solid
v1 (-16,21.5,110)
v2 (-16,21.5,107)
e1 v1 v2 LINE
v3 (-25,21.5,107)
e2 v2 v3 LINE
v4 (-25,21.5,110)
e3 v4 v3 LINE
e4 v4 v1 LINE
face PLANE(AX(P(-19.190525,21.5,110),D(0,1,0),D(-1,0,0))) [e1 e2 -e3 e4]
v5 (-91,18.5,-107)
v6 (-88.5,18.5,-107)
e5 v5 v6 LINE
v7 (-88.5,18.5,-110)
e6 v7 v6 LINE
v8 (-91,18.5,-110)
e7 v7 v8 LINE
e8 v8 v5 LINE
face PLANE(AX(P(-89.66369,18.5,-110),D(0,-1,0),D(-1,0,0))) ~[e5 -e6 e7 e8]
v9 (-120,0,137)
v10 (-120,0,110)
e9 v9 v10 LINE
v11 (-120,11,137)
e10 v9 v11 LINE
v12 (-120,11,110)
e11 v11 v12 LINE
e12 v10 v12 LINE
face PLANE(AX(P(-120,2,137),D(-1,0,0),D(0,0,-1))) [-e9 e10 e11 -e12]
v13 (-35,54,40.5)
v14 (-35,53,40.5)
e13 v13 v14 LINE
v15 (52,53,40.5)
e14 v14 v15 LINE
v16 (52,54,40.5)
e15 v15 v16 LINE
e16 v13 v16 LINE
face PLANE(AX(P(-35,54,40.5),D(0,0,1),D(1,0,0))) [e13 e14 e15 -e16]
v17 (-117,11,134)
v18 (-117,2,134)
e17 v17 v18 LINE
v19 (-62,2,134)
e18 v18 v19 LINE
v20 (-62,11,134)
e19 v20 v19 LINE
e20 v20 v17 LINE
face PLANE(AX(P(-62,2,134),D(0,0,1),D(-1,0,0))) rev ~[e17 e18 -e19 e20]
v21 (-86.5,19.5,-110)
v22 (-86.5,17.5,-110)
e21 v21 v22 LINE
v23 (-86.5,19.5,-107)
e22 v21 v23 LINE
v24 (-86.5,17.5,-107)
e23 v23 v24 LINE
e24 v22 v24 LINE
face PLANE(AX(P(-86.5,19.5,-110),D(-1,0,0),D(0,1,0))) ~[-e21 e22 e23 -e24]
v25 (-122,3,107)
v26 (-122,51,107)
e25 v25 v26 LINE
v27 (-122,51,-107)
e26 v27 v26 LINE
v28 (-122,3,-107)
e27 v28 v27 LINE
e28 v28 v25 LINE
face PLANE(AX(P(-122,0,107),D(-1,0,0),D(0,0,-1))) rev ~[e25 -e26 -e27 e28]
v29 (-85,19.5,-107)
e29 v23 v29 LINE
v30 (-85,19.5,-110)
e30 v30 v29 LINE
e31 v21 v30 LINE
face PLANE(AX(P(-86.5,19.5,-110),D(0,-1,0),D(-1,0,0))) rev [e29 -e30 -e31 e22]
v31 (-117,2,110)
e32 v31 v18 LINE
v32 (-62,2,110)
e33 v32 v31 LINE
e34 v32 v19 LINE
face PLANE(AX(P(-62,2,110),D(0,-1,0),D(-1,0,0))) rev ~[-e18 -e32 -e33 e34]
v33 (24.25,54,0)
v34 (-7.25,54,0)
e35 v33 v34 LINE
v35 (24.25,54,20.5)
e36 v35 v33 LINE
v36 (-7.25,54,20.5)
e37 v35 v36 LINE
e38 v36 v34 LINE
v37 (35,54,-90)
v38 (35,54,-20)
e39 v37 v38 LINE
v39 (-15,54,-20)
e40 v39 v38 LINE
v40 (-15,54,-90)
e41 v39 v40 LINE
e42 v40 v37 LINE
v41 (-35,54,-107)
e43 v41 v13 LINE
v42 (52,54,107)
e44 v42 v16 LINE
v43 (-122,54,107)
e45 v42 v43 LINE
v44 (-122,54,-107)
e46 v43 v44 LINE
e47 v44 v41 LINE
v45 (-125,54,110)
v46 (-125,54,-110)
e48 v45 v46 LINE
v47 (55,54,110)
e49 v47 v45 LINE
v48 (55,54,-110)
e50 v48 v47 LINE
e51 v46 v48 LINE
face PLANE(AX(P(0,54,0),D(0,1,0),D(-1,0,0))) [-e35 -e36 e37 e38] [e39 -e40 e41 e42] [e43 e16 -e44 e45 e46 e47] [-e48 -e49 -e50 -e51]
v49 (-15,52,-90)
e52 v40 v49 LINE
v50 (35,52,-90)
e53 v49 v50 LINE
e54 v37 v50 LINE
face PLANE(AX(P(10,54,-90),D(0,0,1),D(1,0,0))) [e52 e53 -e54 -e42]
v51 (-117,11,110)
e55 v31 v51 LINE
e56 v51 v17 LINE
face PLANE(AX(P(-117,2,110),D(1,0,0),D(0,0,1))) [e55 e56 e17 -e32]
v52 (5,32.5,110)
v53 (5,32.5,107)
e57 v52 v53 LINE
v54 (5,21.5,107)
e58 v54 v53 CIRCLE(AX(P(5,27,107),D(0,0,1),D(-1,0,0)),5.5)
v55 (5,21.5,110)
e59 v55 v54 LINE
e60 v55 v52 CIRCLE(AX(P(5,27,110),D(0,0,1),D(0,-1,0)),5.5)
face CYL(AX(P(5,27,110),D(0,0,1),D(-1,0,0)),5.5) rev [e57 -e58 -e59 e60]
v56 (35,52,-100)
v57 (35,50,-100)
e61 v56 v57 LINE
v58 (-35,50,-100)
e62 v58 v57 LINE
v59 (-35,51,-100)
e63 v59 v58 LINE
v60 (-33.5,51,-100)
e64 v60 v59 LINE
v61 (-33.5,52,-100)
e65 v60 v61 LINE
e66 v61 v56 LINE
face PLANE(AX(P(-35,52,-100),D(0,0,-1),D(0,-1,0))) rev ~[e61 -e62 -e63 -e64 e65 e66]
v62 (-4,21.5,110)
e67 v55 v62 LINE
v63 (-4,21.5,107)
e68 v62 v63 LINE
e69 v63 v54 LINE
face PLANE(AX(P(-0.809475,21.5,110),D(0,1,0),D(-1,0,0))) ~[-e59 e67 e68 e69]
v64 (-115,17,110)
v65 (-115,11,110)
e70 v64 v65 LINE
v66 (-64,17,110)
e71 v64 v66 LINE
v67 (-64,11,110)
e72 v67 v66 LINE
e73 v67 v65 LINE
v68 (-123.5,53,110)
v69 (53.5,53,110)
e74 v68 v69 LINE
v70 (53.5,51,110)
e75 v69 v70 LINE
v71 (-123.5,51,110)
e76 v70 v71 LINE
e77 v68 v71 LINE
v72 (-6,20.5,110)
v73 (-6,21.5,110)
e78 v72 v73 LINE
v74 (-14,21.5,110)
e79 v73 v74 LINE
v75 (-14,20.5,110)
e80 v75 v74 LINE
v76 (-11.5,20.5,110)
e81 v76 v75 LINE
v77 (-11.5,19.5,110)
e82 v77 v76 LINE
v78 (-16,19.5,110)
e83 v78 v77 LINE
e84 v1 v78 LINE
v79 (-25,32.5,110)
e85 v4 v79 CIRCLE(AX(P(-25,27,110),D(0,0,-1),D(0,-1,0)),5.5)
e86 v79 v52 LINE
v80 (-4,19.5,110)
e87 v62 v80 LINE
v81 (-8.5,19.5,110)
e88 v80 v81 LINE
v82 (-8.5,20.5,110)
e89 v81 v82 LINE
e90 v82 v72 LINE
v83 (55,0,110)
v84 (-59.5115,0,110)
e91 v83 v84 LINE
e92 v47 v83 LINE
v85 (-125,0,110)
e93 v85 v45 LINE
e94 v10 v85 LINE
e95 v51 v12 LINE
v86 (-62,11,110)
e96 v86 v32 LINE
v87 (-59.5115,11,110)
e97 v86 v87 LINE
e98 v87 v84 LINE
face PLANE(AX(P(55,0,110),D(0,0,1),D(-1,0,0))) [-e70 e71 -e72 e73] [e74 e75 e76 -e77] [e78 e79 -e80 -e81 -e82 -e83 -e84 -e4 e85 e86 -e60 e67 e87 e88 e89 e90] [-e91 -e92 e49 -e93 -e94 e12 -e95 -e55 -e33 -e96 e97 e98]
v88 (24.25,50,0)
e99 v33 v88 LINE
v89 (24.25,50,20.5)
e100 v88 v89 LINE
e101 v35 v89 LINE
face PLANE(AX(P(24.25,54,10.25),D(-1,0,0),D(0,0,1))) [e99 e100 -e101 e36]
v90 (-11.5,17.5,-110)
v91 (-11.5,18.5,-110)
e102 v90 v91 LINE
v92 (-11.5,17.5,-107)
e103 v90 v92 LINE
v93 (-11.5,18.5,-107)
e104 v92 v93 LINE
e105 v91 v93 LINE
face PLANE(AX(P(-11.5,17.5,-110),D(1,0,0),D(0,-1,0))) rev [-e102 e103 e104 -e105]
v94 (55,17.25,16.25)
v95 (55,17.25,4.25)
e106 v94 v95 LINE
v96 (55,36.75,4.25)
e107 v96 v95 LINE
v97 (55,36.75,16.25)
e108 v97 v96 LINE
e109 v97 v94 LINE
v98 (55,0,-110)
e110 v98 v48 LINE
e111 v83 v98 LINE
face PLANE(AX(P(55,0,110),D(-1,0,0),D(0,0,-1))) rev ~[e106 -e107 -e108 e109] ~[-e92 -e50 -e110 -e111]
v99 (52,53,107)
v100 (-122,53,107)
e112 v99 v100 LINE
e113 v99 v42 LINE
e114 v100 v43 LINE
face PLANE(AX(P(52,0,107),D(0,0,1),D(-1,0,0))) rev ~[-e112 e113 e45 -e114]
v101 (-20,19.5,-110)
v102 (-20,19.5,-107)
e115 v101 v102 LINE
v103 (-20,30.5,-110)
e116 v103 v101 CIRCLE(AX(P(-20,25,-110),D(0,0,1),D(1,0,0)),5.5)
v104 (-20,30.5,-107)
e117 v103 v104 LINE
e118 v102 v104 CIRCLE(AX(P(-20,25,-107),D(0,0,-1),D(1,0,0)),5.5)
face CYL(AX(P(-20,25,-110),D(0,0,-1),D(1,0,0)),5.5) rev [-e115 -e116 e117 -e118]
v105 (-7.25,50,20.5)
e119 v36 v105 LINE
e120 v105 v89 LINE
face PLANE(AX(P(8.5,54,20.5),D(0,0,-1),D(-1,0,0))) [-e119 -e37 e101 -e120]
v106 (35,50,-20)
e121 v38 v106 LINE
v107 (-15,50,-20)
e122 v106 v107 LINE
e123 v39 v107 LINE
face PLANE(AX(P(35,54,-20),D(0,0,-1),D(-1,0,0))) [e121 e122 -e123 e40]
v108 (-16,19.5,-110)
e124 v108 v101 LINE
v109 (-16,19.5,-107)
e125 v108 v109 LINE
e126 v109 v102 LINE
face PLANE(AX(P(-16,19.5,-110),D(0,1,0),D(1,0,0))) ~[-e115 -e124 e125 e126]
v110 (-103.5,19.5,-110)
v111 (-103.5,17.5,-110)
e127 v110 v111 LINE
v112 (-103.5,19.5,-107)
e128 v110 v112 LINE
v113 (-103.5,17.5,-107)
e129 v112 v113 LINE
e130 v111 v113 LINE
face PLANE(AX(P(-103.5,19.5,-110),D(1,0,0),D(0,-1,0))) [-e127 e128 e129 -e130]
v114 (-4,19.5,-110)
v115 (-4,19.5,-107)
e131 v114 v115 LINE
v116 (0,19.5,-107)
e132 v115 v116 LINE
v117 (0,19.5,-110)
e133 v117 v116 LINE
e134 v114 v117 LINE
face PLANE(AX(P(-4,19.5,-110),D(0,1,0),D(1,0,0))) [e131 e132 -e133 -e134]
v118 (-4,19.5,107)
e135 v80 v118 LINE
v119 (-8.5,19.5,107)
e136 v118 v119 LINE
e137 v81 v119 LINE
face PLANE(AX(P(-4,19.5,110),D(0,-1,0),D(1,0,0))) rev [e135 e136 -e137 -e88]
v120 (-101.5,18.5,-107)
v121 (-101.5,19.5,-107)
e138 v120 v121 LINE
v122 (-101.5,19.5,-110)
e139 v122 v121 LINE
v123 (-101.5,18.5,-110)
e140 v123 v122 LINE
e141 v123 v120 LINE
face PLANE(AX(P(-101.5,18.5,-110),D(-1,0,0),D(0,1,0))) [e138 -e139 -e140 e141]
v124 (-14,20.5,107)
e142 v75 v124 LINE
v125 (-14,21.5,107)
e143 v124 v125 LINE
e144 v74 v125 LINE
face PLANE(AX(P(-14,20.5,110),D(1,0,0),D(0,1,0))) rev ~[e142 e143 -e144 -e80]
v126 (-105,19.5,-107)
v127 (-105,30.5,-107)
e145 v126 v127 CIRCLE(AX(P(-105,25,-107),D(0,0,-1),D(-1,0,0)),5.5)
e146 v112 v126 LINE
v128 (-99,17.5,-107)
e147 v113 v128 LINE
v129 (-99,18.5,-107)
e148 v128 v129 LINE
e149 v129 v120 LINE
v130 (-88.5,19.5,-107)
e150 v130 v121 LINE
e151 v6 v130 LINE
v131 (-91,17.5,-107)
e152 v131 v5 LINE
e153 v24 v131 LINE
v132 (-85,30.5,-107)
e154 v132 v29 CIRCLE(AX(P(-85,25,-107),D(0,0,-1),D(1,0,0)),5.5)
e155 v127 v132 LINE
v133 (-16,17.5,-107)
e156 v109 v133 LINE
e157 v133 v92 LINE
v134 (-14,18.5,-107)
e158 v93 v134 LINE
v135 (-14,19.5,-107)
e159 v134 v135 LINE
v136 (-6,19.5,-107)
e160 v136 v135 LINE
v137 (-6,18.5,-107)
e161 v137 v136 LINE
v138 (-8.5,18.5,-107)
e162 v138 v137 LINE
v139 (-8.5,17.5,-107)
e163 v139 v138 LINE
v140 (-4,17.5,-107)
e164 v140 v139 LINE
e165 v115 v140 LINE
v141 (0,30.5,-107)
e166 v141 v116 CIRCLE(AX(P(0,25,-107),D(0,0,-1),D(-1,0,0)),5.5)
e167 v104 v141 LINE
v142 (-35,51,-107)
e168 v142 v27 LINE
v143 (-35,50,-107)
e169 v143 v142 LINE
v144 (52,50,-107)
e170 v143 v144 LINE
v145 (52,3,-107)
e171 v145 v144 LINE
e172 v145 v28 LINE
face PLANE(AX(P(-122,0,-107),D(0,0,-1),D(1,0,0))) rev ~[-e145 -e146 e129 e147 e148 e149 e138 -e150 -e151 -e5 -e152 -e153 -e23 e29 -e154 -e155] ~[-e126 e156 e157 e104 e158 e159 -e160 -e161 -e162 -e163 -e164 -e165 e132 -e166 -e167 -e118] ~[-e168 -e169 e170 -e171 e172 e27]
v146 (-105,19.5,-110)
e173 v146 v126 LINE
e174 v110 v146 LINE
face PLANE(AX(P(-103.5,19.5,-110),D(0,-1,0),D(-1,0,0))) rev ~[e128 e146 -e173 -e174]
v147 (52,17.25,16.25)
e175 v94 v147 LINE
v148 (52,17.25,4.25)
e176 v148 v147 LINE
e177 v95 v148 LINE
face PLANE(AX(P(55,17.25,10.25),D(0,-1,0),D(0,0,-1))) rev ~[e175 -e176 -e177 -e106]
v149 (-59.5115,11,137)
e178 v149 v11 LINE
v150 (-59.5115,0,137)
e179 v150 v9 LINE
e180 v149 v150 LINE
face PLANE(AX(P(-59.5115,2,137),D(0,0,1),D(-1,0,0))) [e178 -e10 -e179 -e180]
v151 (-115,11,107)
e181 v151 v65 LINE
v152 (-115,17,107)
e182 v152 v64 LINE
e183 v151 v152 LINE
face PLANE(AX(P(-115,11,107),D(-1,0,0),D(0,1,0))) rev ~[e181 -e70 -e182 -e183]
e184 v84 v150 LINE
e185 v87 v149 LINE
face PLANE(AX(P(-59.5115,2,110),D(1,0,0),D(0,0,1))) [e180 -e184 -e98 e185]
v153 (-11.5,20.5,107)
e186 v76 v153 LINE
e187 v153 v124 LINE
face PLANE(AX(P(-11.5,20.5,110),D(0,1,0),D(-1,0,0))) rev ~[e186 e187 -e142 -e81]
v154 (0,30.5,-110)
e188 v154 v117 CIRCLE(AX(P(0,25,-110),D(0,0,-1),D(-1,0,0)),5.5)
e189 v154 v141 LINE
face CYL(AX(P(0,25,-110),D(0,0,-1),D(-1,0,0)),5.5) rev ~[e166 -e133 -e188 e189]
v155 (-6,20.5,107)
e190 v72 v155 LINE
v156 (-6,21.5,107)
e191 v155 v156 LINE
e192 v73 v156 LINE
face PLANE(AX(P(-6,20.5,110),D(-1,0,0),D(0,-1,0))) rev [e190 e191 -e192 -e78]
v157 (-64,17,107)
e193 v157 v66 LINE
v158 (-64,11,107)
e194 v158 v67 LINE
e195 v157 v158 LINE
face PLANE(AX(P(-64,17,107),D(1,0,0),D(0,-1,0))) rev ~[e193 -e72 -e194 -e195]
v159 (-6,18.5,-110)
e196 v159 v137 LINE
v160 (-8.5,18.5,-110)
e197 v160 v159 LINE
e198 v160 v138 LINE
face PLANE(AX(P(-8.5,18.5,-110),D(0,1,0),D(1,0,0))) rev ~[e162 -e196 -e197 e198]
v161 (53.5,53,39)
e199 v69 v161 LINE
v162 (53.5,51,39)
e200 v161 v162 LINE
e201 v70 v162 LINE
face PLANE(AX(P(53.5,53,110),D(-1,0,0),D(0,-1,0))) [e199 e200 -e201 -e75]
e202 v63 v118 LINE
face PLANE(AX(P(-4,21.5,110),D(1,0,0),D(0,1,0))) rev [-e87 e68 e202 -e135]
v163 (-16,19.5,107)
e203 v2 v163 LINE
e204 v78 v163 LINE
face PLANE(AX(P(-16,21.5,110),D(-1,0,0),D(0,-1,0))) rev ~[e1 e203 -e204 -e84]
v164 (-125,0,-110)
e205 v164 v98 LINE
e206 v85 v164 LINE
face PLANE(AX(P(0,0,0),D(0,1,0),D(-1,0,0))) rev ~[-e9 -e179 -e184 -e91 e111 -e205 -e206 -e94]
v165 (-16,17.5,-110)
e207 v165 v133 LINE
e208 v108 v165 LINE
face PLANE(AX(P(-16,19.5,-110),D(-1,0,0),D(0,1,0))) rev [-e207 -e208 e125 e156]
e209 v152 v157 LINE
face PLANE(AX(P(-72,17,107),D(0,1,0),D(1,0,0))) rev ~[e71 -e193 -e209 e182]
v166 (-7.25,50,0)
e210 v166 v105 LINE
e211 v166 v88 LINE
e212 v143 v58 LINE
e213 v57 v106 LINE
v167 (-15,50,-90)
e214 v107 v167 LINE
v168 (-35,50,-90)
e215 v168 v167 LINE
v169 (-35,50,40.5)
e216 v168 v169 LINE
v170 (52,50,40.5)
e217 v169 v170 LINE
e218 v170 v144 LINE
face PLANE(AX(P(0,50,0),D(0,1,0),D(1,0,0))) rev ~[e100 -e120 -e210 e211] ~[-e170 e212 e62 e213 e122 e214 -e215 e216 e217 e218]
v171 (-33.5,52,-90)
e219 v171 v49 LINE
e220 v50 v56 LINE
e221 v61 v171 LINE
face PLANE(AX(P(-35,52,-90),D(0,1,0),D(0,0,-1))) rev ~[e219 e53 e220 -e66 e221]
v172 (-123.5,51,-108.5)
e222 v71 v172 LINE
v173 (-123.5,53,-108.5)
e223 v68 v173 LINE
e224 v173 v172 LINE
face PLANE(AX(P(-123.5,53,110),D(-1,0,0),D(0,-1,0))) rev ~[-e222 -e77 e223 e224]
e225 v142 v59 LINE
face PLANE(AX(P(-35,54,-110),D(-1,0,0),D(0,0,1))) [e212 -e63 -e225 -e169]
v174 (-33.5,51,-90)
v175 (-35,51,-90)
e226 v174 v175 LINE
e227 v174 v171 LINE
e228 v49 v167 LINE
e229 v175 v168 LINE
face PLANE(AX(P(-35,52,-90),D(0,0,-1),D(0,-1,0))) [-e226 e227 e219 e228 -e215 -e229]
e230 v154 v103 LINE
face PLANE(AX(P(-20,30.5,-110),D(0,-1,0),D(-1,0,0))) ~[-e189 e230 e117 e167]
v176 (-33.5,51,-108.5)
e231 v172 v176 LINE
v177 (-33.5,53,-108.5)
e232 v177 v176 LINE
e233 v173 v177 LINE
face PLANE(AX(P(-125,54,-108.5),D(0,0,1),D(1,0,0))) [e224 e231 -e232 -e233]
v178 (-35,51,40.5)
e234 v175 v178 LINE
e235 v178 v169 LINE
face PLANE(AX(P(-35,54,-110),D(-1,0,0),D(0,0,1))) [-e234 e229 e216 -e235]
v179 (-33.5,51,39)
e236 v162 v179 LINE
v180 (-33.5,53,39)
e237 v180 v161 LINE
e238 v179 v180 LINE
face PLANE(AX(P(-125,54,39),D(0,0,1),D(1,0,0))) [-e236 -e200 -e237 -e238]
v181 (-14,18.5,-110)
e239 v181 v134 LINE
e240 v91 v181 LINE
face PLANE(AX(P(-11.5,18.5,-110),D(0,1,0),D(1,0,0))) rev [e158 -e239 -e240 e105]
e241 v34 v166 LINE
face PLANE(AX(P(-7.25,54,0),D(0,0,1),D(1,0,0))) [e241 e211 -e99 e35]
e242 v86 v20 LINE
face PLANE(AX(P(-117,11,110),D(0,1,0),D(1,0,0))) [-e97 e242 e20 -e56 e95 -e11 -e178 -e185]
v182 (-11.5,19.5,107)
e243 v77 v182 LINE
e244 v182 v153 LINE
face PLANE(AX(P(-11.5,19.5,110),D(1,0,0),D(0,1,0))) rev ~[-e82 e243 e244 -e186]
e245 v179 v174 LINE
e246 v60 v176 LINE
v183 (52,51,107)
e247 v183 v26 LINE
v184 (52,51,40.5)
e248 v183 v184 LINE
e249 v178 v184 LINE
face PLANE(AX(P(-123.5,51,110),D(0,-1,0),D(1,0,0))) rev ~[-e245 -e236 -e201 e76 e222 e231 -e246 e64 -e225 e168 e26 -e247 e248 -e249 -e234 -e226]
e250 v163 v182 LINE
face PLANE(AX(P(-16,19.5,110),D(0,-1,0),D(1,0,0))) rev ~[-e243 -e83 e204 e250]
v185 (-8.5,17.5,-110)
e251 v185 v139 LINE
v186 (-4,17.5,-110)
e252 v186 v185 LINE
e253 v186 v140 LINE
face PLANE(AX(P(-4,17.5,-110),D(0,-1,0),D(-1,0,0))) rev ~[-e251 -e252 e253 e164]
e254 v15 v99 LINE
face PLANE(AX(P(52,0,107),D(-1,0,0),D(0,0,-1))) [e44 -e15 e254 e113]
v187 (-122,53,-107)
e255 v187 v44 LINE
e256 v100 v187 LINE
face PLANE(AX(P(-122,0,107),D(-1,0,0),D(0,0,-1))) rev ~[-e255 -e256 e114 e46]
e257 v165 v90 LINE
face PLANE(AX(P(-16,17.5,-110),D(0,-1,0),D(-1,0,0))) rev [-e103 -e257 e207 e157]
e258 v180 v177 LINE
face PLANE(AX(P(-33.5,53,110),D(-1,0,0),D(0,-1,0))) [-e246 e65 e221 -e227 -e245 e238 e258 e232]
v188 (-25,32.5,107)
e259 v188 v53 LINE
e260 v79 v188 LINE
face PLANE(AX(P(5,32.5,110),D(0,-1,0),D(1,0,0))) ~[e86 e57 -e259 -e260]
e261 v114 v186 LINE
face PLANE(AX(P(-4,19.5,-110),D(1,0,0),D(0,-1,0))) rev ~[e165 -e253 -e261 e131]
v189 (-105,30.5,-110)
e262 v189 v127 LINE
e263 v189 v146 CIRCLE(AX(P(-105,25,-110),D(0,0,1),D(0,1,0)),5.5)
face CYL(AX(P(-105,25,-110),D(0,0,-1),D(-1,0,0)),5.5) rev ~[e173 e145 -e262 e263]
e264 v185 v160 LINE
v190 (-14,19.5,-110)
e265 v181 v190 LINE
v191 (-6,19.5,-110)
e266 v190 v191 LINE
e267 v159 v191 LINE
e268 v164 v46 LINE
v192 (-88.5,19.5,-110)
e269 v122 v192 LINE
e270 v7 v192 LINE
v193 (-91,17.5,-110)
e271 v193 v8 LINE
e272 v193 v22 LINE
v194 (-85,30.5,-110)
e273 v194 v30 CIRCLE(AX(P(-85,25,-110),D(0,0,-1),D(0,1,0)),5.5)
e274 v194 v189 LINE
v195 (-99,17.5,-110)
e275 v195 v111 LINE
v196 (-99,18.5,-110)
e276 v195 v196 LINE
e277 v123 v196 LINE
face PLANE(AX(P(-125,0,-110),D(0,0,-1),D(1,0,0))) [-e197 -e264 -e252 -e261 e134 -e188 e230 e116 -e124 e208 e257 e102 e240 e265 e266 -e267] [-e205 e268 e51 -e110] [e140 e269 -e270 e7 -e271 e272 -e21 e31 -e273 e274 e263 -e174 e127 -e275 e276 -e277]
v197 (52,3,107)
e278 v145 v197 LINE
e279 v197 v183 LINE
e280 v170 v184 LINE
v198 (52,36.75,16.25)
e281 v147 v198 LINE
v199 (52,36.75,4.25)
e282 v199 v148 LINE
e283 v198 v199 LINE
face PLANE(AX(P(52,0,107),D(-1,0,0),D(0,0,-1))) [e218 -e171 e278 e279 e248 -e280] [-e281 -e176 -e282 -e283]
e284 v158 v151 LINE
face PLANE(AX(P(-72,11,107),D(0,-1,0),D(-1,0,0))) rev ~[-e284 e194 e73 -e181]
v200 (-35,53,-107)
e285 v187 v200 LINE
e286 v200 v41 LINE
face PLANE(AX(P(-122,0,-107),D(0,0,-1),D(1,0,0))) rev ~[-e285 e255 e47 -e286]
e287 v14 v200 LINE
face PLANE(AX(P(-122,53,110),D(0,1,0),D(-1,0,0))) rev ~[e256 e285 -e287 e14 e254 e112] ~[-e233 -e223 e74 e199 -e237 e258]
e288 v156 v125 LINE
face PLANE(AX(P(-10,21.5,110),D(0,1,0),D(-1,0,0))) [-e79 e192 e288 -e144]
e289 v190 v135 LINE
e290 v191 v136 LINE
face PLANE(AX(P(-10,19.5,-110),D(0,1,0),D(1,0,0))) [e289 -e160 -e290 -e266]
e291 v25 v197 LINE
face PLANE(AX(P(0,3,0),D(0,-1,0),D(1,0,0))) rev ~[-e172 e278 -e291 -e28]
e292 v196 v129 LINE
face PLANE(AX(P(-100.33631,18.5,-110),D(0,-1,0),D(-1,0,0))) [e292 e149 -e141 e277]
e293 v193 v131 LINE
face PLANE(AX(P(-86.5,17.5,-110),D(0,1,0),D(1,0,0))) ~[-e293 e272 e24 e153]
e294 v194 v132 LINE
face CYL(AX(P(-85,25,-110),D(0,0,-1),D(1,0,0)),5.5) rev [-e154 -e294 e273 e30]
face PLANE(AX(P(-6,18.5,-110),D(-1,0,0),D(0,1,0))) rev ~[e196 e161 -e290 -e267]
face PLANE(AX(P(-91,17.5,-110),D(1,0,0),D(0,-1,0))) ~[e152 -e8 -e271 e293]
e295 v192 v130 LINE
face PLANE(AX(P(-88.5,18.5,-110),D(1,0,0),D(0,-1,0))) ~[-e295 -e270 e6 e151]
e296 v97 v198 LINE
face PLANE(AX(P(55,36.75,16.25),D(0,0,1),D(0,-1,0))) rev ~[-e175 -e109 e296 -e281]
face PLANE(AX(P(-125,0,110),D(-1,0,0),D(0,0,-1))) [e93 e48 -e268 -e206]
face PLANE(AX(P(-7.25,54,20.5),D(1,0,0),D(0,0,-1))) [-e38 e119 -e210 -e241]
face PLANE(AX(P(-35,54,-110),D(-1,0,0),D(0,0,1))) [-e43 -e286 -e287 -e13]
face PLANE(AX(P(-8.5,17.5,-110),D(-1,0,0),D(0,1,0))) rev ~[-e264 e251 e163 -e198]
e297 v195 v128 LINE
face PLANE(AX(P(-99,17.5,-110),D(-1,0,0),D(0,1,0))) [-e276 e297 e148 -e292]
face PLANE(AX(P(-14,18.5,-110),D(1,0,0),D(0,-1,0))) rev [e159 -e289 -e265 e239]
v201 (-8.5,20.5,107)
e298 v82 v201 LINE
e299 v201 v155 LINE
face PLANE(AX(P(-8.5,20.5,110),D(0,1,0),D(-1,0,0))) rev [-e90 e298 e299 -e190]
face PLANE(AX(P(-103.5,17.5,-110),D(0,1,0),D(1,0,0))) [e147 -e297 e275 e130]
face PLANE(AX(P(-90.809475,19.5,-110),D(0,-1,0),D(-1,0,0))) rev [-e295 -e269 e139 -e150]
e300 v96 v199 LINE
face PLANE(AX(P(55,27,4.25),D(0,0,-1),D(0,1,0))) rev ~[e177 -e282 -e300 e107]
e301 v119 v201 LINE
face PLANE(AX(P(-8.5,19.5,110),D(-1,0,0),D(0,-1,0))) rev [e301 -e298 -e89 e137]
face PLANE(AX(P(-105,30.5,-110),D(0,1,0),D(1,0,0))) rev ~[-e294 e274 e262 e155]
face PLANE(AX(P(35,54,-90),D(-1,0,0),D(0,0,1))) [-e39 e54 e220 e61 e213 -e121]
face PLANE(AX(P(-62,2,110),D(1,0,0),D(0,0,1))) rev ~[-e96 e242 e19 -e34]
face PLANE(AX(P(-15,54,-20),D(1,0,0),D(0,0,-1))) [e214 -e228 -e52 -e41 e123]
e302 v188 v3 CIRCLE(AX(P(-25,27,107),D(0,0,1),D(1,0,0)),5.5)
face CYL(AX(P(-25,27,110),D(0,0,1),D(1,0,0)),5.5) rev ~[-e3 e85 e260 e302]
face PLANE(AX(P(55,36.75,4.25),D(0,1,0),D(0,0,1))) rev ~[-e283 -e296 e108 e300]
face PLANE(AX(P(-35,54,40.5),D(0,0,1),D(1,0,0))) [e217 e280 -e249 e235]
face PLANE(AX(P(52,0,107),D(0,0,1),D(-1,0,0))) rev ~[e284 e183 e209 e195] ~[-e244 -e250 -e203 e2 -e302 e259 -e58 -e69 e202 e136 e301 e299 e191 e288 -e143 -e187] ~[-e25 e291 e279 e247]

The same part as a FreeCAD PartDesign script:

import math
import FreeCAD as App
import Part
import Sketcher
from FreeCAD import Vector

doc = App.newDocument("Part")
body = doc.addObject("PartDesign::Body", "Body")

sketch1 = body.newObject("Sketcher::SketchObject", "Sketch")
sketch1.AttachmentSupport = (doc.getObject("XZ_Plane"), [""])
sketch1.MapMode = "FlatFace"
sketch1.addGeometry(Part.LineSegment(Vector(55, 110, 0), Vector(55, -110, 0)), False)
sketch1.addGeometry(Part.LineSegment(Vector(55, -110, 0), Vector(-125, -110, 0)), False)
sketch1.addGeometry(Part.LineSegment(Vector(-125, -110, 0), Vector(-125, 110, 0)), False)
sketch1.addGeometry(Part.LineSegment(Vector(-125, 110, 0), Vector(55, 110, 0)), False)
sketch1.addGeometry(Part.LineSegment(Vector(-122, -107, 0), Vector(52, -107, 0)), False)
sketch1.addGeometry(Part.LineSegment(Vector(52, -107, 0), Vector(52, 107, 0)), False)
sketch1.addGeometry(Part.LineSegment(Vector(52, 107, 0), Vector(-122, 107, 0)), False)
sketch1.addGeometry(Part.LineSegment(Vector(-122, 107, 0), Vector(-122, -107, 0)), False)
sketch1.addConstraint(Sketcher.Constraint("Coincident", 0, 2, 1, 1))
sketch1.addConstraint(Sketcher.Constraint("Coincident", 1, 2, 2, 1))
sketch1.addConstraint(Sketcher.Constraint("Coincident", 2, 2, 3, 1))
sketch1.addConstraint(Sketcher.Constraint("Coincident", 3, 2, 0, 1))
sketch1.addConstraint(Sketcher.Constraint("Coincident", 4, 2, 5, 1))
sketch1.addConstraint(Sketcher.Constraint("Coincident", 5, 2, 6, 1))
sketch1.addConstraint(Sketcher.Constraint("Coincident", 6, 2, 7, 1))
sketch1.addConstraint(Sketcher.Constraint("Coincident", 7, 2, 4, 1))
sketch1.addConstraint(Sketcher.Constraint("Vertical", 0))
sketch1.addConstraint(Sketcher.Constraint("Horizontal", 1))
sketch1.addConstraint(Sketcher.Constraint("Vertical", 2))
sketch1.addConstraint(Sketcher.Constraint("Horizontal", 3))
sketch1.addConstraint(Sketcher.Constraint("Horizontal", 4))
sketch1.addConstraint(Sketcher.Constraint("Vertical", 5))
sketch1.addConstraint(Sketcher.Constraint("Horizontal", 6))
sketch1.addConstraint(Sketcher.Constraint("Vertical", 7))
sketch1.addConstraint(Sketcher.Constraint("DistanceX", 1, 2, 1, 1, 180.0))
sketch1.addConstraint(Sketcher.Constraint("DistanceX", 4, 1, 4, 2, 174.0))
sketch1.addConstraint(Sketcher.Constraint("DistanceY", 0, 2, 0, 1, 220.0))
sketch1.addConstraint(Sketcher.Constraint("DistanceY", 5, 1, 5, 2, 214.0))
sketch1.addConstraint(Sketcher.Constraint("DistanceX", -1, 1, 0, 2, 55.0))
sketch1.addConstraint(Sketcher.Constraint("DistanceY", 0, 2, -1, 1, 110.0))
sketch1.addConstraint(Sketcher.Constraint("DistanceX", -1, 1, 4, 2, 52.0))
sketch1.addConstraint(Sketcher.Constraint("DistanceY", 4, 2, -1, 1, 107.0))
pad1 = body.newObject("PartDesign::Pad", "Pad")
pad1.Profile = sketch1
pad1.Length = 54
pad1.Reversed = True

sketch2 = body.newObject("Sketcher::SketchObject", "Sketch001")
sketch2.AttachmentSupport = (doc.getObject("XZ_Plane"), [""])
sketch2.MapMode = "FlatFace"
sketch2.addGeometry(Part.LineSegment(Vector(55, -110, 0), Vector(55, 110, 0)), False)
sketch2.addGeometry(Part.LineSegment(Vector(55, 110, 0), Vector(-123.5, 110, 0)), False)
sketch2.addGeometry(Part.LineSegment(Vector(-123.5, 110, 0), Vector(-123.5, -110, 0)), False)
sketch2.addGeometry(Part.LineSegment(Vector(-123.5, -110, 0), Vector(55, -110, 0)), False)
sketch2.addConstraint(Sketcher.Constraint("Coincident", 0, 2, 1, 1))
sketch2.addConstraint(Sketcher.Constraint("Coincident", 1, 2, 2, 1))
sketch2.addConstraint(Sketcher.Constraint("Coincident", 2, 2, 3, 1))
sketch2.addConstraint(Sketcher.Constraint("Coincident", 3, 2, 0, 1))
sketch2.addConstraint(Sketcher.Constraint("Vertical", 0))
sketch2.addConstraint(Sketcher.Constraint("Horizontal", 1))
sketch2.addConstraint(Sketcher.Constraint("Vertical", 2))
sketch2.addConstraint(Sketcher.Constraint("Horizontal", 3))
sketch2.addConstraint(Sketcher.Constraint("DistanceY", 0, 1, 0, 2, 220.0))
sketch2.addConstraint(Sketcher.Constraint("DistanceX", 1, 2, 1, 1, 178.5))
sketch2.addConstraint(Sketcher.Constraint("DistanceX", -1, 1, 0, 2, 55.0))
sketch2.addConstraint(Sketcher.Constraint("DistanceY", -1, 1, 0, 2, 110.0))
pad2 = body.newObject("PartDesign::Pad", "Pad001")
pad2.Profile = sketch2
pad2.Length = 3
pad2.Reversed = True

sketch3 = body.newObject("Sketcher::SketchObject", "Sketch002")
sketch3.AttachmentSupport = (doc.getObject("XY_Plane"), [""])
sketch3.MapMode = "FlatFace"
sketch3.AttachmentOffset = App.Placement(Vector(0, 0, 110), App.Rotation())
sketch3.addGeometry(Part.ArcOfCircle(Part.Circle(Vector(-25, 27, 0), Vector(0, 0, 1), 5.5), math.radians(90), math.radians(270)), False)
sketch3.addGeometry(Part.LineSegment(Vector(-25, 21.5, 0), Vector(-16, 21.5, 0)), False)
sketch3.addGeometry(Part.LineSegment(Vector(-16, 21.5, 0), Vector(-16, 19.5, 0)), False)
sketch3.addGeometry(Part.LineSegment(Vector(-16, 19.5, 0), Vector(-11.5, 19.5, 0)), False)
sketch3.addGeometry(Part.LineSegment(Vector(-11.5, 19.5, 0), Vector(-11.5, 20.5, 0)), False)
sketch3.addGeometry(Part.LineSegment(Vector(-11.5, 20.5, 0), Vector(-14, 20.5, 0)), False)
sketch3.addGeometry(Part.LineSegment(Vector(-14, 20.5, 0), Vector(-14, 21.5, 0)), False)
sketch3.addGeometry(Part.LineSegment(Vector(-14, 21.5, 0), Vector(-10, 21.5, 0)), False)
sketch3.addGeometry(Part.LineSegment(Vector(-10, 21.5, 0), Vector(-10, 32.5, 0)), False)
sketch3.addGeometry(Part.LineSegment(Vector(-10, 32.5, 0), Vector(-25, 32.5, 0)), False)
sketch3.addConstraint(Sketcher.Constraint("Tangent", 0, 2, 1, 1))
sketch3.addConstraint(Sketcher.Constraint("Coincident", 1, 2, 2, 1))
sketch3.addConstraint(Sketcher.Constraint("Coincident", 2, 2, 3, 1))
sketch3.addConstraint(Sketcher.Constraint("Coincident", 3, 2, 4, 1))
sketch3.addConstraint(Sketcher.Constraint("Coincident", 4, 2, 5, 1))
sketch3.addConstraint(Sketcher.Constraint("Coincident", 5, 2, 6, 1))
sketch3.addConstraint(Sketcher.Constraint("Coincident", 6, 2, 7, 1))
sketch3.addConstraint(Sketcher.Constraint("Coincident", 7, 2, 8, 1))
sketch3.addConstraint(Sketcher.Constraint("Coincident", 8, 2, 9, 1))
sketch3.addConstraint(Sketcher.Constraint("Tangent", 9, 2, 0, 1))
sketch3.addConstraint(Sketcher.Constraint("Horizontal", 1))
sketch3.addConstraint(Sketcher.Constraint("Vertical", 2))
sketch3.addConstraint(Sketcher.Constraint("Horizontal", 3))
sketch3.addConstraint(Sketcher.Constraint("Vertical", 4))
sketch3.addConstraint(Sketcher.Constraint("Horizontal", 5))
sketch3.addConstraint(Sketcher.Constraint("Vertical", 6))
sketch3.addConstraint(Sketcher.Constraint("Horizontal", 7))
sketch3.addConstraint(Sketcher.Constraint("Vertical", 8))
sketch3.addConstraint(Sketcher.Constraint("Horizontal", 9))
sketch3.addConstraint(Sketcher.Constraint("Horizontal", 1, 2, 6, 2))
sketch3.addConstraint(Sketcher.Constraint("Equal", 4, 6))
sketch3.addConstraint(Sketcher.Constraint("Radius", 0, 5.5))
sketch3.addConstraint(Sketcher.Constraint("DistanceX", 1, 1, 1, 2, 9.0))
sketch3.addConstraint(Sketcher.Constraint("DistanceX", 9, 2, 9, 1, 15.0))
sketch3.addConstraint(Sketcher.Constraint("DistanceY", 2, 2, 2, 1, 2.0))
sketch3.addConstraint(Sketcher.Constraint("DistanceX", 3, 1, 3, 2, 4.5))
sketch3.addConstraint(Sketcher.Constraint("DistanceX", 5, 2, 5, 1, 2.5))
sketch3.addConstraint(Sketcher.Constraint("DistanceX", 1, 2, -1, 1, 16.0))
sketch3.addConstraint(Sketcher.Constraint("DistanceY", -1, 1, 0, 3, 27.0))
pocket1 = body.newObject("PartDesign::Pocket", "Pocket")
pocket1.Profile = sketch3
pocket1.Length = 38
doc.recompute()

datumplane = body.newObject("PartDesign::Plane", "DatumPlane")
datumplane.AttachmentSupport = (doc.getObject("YZ_Plane"), [""])
datumplane.MapMode = "FlatFace"
datumplane.AttachmentOffset = App.Placement(Vector(0, 0, -10), App.Rotation())
mirrored = body.newObject("PartDesign::Mirrored", "Mirrored")
mirrored.Originals = [pocket1]
mirrored.MirrorPlane = (datumplane, [""])
body.Tip = mirrored

sketch4 = body.newObject("Sketcher::SketchObject", "Sketch003")
sketch4.AttachmentSupport = (doc.getObject("XY_Plane"), [""])
sketch4.MapMode = "FlatFace"
sketch4.AttachmentOffset = App.Placement(Vector(0, 0, -110), App.Rotation())
sketch4.addGeometry(Part.ArcOfCircle(Part.Circle(Vector(-105, 25, 0), Vector(0, 0, 1), 5.5), math.radians(90), math.radians(270)), False)
sketch4.addGeometry(Part.LineSegment(Vector(-105, 30.5, 0), Vector(-95, 30.5, 0)), False)
sketch4.addGeometry(Part.LineSegment(Vector(-95, 30.5, 0), Vector(-95, 19.5, 0)), False)
sketch4.addGeometry(Part.LineSegment(Vector(-95, 19.5, 0), Vector(-101.5, 19.5, 0)), False)
sketch4.addGeometry(Part.LineSegment(Vector(-101.5, 19.5, 0), Vector(-101.5, 18.5, 0)), False)
sketch4.addGeometry(Part.LineSegment(Vector(-101.5, 18.5, 0), Vector(-99, 18.5, 0)), False)
sketch4.addGeometry(Part.LineSegment(Vector(-99, 18.5, 0), Vector(-99, 17.5, 0)), False)
sketch4.addGeometry(Part.LineSegment(Vector(-99, 17.5, 0), Vector(-103.5, 17.5, 0)), False)
sketch4.addGeometry(Part.LineSegment(Vector(-103.5, 17.5, 0), Vector(-103.5, 19.5, 0)), False)
sketch4.addGeometry(Part.LineSegment(Vector(-103.5, 19.5, 0), Vector(-105, 19.5, 0)), False)
sketch4.addConstraint(Sketcher.Constraint("Tangent", 0, 1, 1, 1))
sketch4.addConstraint(Sketcher.Constraint("Coincident", 1, 2, 2, 1))
sketch4.addConstraint(Sketcher.Constraint("Coincident", 2, 2, 3, 1))
sketch4.addConstraint(Sketcher.Constraint("Coincident", 3, 2, 4, 1))
sketch4.addConstraint(Sketcher.Constraint("Coincident", 4, 2, 5, 1))
sketch4.addConstraint(Sketcher.Constraint("Coincident", 5, 2, 6, 1))
sketch4.addConstraint(Sketcher.Constraint("Coincident", 6, 2, 7, 1))
sketch4.addConstraint(Sketcher.Constraint("Coincident", 7, 2, 8, 1))
sketch4.addConstraint(Sketcher.Constraint("Coincident", 8, 2, 9, 1))
sketch4.addConstraint(Sketcher.Constraint("Tangent", 9, 2, 0, 2))
sketch4.addConstraint(Sketcher.Constraint("Horizontal", 1))
sketch4.addConstraint(Sketcher.Constraint("Vertical", 2))
sketch4.addConstraint(Sketcher.Constraint("Horizontal", 3))
sketch4.addConstraint(Sketcher.Constraint("Vertical", 4))
sketch4.addConstraint(Sketcher.Constraint("Horizontal", 5))
sketch4.addConstraint(Sketcher.Constraint("Vertical", 6))
sketch4.addConstraint(Sketcher.Constraint("Horizontal", 7))
sketch4.addConstraint(Sketcher.Constraint("Vertical", 8))
sketch4.addConstraint(Sketcher.Constraint("Horizontal", 9))
sketch4.addConstraint(Sketcher.Constraint("Horizontal", 3, 2, 8, 2))
sketch4.addConstraint(Sketcher.Constraint("Equal", 4, 6))
sketch4.addConstraint(Sketcher.Constraint("Radius", 0, 5.5))
sketch4.addConstraint(Sketcher.Constraint("DistanceX", 1, 1, 1, 2, 10.0))
sketch4.addConstraint(Sketcher.Constraint("DistanceY", 4, 2, 4, 1, 1.0))
sketch4.addConstraint(Sketcher.Constraint("DistanceX", 5, 1, 5, 2, 2.5))
sketch4.addConstraint(Sketcher.Constraint("DistanceX", 7, 2, 7, 1, 4.5))
sketch4.addConstraint(Sketcher.Constraint("DistanceX", 9, 2, 9, 1, 1.5))
sketch4.addConstraint(Sketcher.Constraint("DistanceY", -1, 1, 0, 3, 25.0))
sketch4.addConstraint(Sketcher.Constraint("DistanceX", 0, 3, -1, 1, 105.0))
pocket2 = body.newObject("PartDesign::Pocket", "Pocket001")
pocket2.Profile = sketch4
pocket2.Length = 10
pocket2.Reversed = True
doc.recompute()

datumplane2 = body.newObject("PartDesign::Plane", "DatumPlane001")
datumplane2.AttachmentSupport = (doc.getObject("YZ_Plane"), [""])
datumplane2.MapMode = "FlatFace"
datumplane2.AttachmentOffset = App.Placement(Vector(0, 0, -95), App.Rotation())
mirrored2 = body.newObject("PartDesign::Mirrored", "Mirrored001")
mirrored2.Originals = [pocket2]
mirrored2.MirrorPlane = (datumplane2, [""])
body.Tip = mirrored2

sketch5 = body.newObject("Sketcher::SketchObject", "Sketch004")
sketch5.AttachmentSupport = (doc.getObject("XY_Plane"), [""])
sketch5.MapMode = "FlatFace"
sketch5.AttachmentOffset = App.Placement(Vector(0, 0, -110), App.Rotation())
sketch5.addGeometry(Part.ArcOfCircle(Part.Circle(Vector(0, 25, 0), Vector(0, 0, 1), 5.5), math.radians(-90), math.radians(90)), False)
sketch5.addGeometry(Part.LineSegment(Vector(0, 19.5, 0), Vector(-4, 19.5, 0)), False)
sketch5.addGeometry(Part.LineSegment(Vector(-4, 19.5, 0), Vector(-4, 17.5, 0)), False)
sketch5.addGeometry(Part.LineSegment(Vector(-4, 17.5, 0), Vector(-8.5, 17.5, 0)), False)
sketch5.addGeometry(Part.LineSegment(Vector(-8.5, 17.5, 0), Vector(-8.5, 18.5, 0)), False)
sketch5.addGeometry(Part.LineSegment(Vector(-8.5, 18.5, 0), Vector(-6, 18.5, 0)), False)
sketch5.addGeometry(Part.LineSegment(Vector(-6, 18.5, 0), Vector(-6, 19.5, 0)), False)
sketch5.addGeometry(Part.LineSegment(Vector(-6, 19.5, 0), Vector(-10, 19.5, 0)), False)
sketch5.addGeometry(Part.LineSegment(Vector(-10, 19.5, 0), Vector(-10, 30.5, 0)), False)
sketch5.addGeometry(Part.LineSegment(Vector(-10, 30.5, 0), Vector(0, 30.5, 0)), False)
sketch5.addConstraint(Sketcher.Constraint("Tangent", 0, 1, 1, 1))
sketch5.addConstraint(Sketcher.Constraint("Coincident", 1, 2, 2, 1))
sketch5.addConstraint(Sketcher.Constraint("Coincident", 2, 2, 3, 1))
sketch5.addConstraint(Sketcher.Constraint("Coincident", 3, 2, 4, 1))
sketch5.addConstraint(Sketcher.Constraint("Coincident", 4, 2, 5, 1))
sketch5.addConstraint(Sketcher.Constraint("Coincident", 5, 2, 6, 1))
sketch5.addConstraint(Sketcher.Constraint("Coincident", 6, 2, 7, 1))
sketch5.addConstraint(Sketcher.Constraint("Coincident", 7, 2, 8, 1))
sketch5.addConstraint(Sketcher.Constraint("Coincident", 8, 2, 9, 1))
sketch5.addConstraint(Sketcher.Constraint("Tangent", 9, 2, 0, 2))
sketch5.addConstraint(Sketcher.Constraint("Horizontal", 1))
sketch5.addConstraint(Sketcher.Constraint("Vertical", 2))
sketch5.addConstraint(Sketcher.Constraint("Horizontal", 3))
sketch5.addConstraint(Sketcher.Constraint("Vertical", 4))
sketch5.addConstraint(Sketcher.Constraint("Horizontal", 5))
sketch5.addConstraint(Sketcher.Constraint("Vertical", 6))
sketch5.addConstraint(Sketcher.Constraint("Horizontal", 7))
sketch5.addConstraint(Sketcher.Constraint("Vertical", 8))
sketch5.addConstraint(Sketcher.Constraint("Horizontal", 9))
sketch5.addConstraint(Sketcher.Constraint("PointOnObject", 0, 3, -2))
sketch5.addConstraint(Sketcher.Constraint("Horizontal", 1, 2, 6, 2))
sketch5.addConstraint(Sketcher.Constraint("Equal", 1, 7))
sketch5.addConstraint(Sketcher.Constraint("Equal", 4, 6))
sketch5.addConstraint(Sketcher.Constraint("Radius", 0, 5.5))
sketch5.addConstraint(Sketcher.Constraint("DistanceY", 2, 2, 2, 1, 2.0))
sketch5.addConstraint(Sketcher.Constraint("DistanceX", 3, 2, 3, 1, 4.5))
sketch5.addConstraint(Sketcher.Constraint("DistanceX", 5, 1, 5, 2, 2.5))
sketch5.addConstraint(Sketcher.Constraint("DistanceY", -1, 1, 0, 3, 25.0))
sketch5.addConstraint(Sketcher.Constraint("DistanceX", 7, 2, 4, 2, 1.5))
pocket3 = body.newObject("PartDesign::Pocket", "Pocket002")
pocket3.Profile = sketch5
pocket3.Length = 10
pocket3.Reversed = True
doc.recompute()

datumplane3 = body.newObject("PartDesign::Plane", "DatumPlane002")
datumplane3.AttachmentSupport = (doc.getObject("YZ_Plane"), [""])
datumplane3.MapMode = "FlatFace"
datumplane3.AttachmentOffset = App.Placement(Vector(0, 0, -10), App.Rotation())
mirrored3 = body.newObject("PartDesign::Mirrored", "Mirrored002")
mirrored3.Originals = [pocket3]
mirrored3.MirrorPlane = (datumplane3, [""])
body.Tip = mirrored3

sketch6 = body.newObject("Sketcher::SketchObject", "Sketch005")
sketch6.AttachmentSupport = (doc.getObject("XY_Plane"), [""])
sketch6.MapMode = "FlatFace"
sketch6.AttachmentOffset = App.Placement(Vector(0, 0, 107), App.Rotation())
sketch6.addGeometry(Part.LineSegment(Vector(-64, 11, 0), Vector(-115, 11, 0)), False)
sketch6.addGeometry(Part.LineSegment(Vector(-115, 11, 0), Vector(-115, 17, 0)), False)
sketch6.addGeometry(Part.LineSegment(Vector(-115, 17, 0), Vector(-64, 17, 0)), False)
sketch6.addGeometry(Part.LineSegment(Vector(-64, 17, 0), Vector(-64, 11, 0)), False)
sketch6.addConstraint(Sketcher.Constraint("Coincident", 0, 2, 1, 1))
sketch6.addConstraint(Sketcher.Constraint("Coincident", 1, 2, 2, 1))
sketch6.addConstraint(Sketcher.Constraint("Coincident", 2, 2, 3, 1))
sketch6.addConstraint(Sketcher.Constraint("Coincident", 3, 2, 0, 1))
sketch6.addConstraint(Sketcher.Constraint("Horizontal", 0))
sketch6.addConstraint(Sketcher.Constraint("Vertical", 1))
sketch6.addConstraint(Sketcher.Constraint("Horizontal", 2))
sketch6.addConstraint(Sketcher.Constraint("Vertical", 3))
sketch6.addConstraint(Sketcher.Constraint("DistanceX", 0, 2, 0, 1, 51.0))
sketch6.addConstraint(Sketcher.Constraint("DistanceY", 1, 1, 1, 2, 6.0))
sketch6.addConstraint(Sketcher.Constraint("DistanceX", 0, 2, -1, 1, 115.0))
sketch6.addConstraint(Sketcher.Constraint("DistanceY", -1, 1, 0, 2, 11.0))
pocket4 = body.newObject("PartDesign::Pocket", "Pocket003")
pocket4.Profile = sketch6
pocket4.Length = 10
pocket4.Reversed = True

sketch7 = body.newObject("Sketcher::SketchObject", "Sketch006")
sketch7.AttachmentSupport = (doc.getObject("XY_Plane"), [""])
sketch7.MapMode = "FlatFace"
sketch7.AttachmentOffset = App.Placement(Vector(0, 0, 110), App.Rotation())
sketch7.addGeometry(Part.LineSegment(Vector(-62, 2, 0), Vector(-117, 2, 0)), False)
sketch7.addGeometry(Part.LineSegment(Vector(-117, 2, 0), Vector(-117, 0, 0)), False)
sketch7.addGeometry(Part.LineSegment(Vector(-117, 0, 0), Vector(-62, 0, 0)), False)
sketch7.addGeometry(Part.LineSegment(Vector(-62, 0, 0), Vector(-62, 2, 0)), False)
sketch7.addConstraint(Sketcher.Constraint("Coincident", 0, 2, 1, 1))
sketch7.addConstraint(Sketcher.Constraint("Coincident", 1, 2, 2, 1))
sketch7.addConstraint(Sketcher.Constraint("Coincident", 2, 2, 3, 1))
sketch7.addConstraint(Sketcher.Constraint("Coincident", 3, 2, 0, 1))
sketch7.addConstraint(Sketcher.Constraint("Horizontal", 0))
sketch7.addConstraint(Sketcher.Constraint("Vertical", 1))
sketch7.addConstraint(Sketcher.Constraint("Horizontal", 2))
sketch7.addConstraint(Sketcher.Constraint("Vertical", 3))
sketch7.addConstraint(Sketcher.Constraint("PointOnObject", 1, 2, -1))
sketch7.addConstraint(Sketcher.Constraint("DistanceX", 0, 2, 0, 1, 55.0))
sketch7.addConstraint(Sketcher.Constraint("DistanceY", 1, 2, 1, 1, 2.0))
sketch7.addConstraint(Sketcher.Constraint("DistanceX", 0, 2, -1, 1, 117.0))
pad3 = body.newObject("PartDesign::Pad", "Pad002")
pad3.Profile = sketch7
pad3.Length = 24

sketch8 = body.newObject("Sketcher::SketchObject", "Sketch007")
sketch8.AttachmentSupport = (doc.getObject("XZ_Plane"), [""])
sketch8.MapMode = "FlatFace"
sketch8.AttachmentOffset = App.Placement(Vector(0, 0, -2), App.Rotation())
sketch8.addGeometry(Part.LineSegment(Vector(-117, 134, 0), Vector(-117, 110, 0)), False)
sketch8.addGeometry(Part.LineSegment(Vector(-117, 110, 0), Vector(-120, 110, 0)), False)
sketch8.addGeometry(Part.LineSegment(Vector(-120, 110, 0), Vector(-120, 137, 0)), False)
sketch8.addGeometry(Part.LineSegment(Vector(-120, 137, 0), Vector(-59.5115, 137, 0)), False)
sketch8.addGeometry(Part.LineSegment(Vector(-59.5115, 137, 0), Vector(-59.5115, 110, 0)), False)
sketch8.addGeometry(Part.LineSegment(Vector(-59.5115, 110, 0), Vector(-62, 110, 0)), False)
sketch8.addGeometry(Part.LineSegment(Vector(-62, 110, 0), Vector(-62, 134, 0)), False)
sketch8.addGeometry(Part.LineSegment(Vector(-62, 134, 0), Vector(-117, 134, 0)), False)
sketch8.addConstraint(Sketcher.Constraint("Coincident", 0, 2, 1, 1))
sketch8.addConstraint(Sketcher.Constraint("Coincident", 1, 2, 2, 1))
sketch8.addConstraint(Sketcher.Constraint("Coincident", 2, 2, 3, 1))
sketch8.addConstraint(Sketcher.Constraint("Coincident", 3, 2, 4, 1))
sketch8.addConstraint(Sketcher.Constraint("Coincident", 4, 2, 5, 1))
sketch8.addConstraint(Sketcher.Constraint("Coincident", 5, 2, 6, 1))
sketch8.addConstraint(Sketcher.Constraint("Coincident", 6, 2, 7, 1))
sketch8.addConstraint(Sketcher.Constraint("Coincident", 7, 2, 0, 1))
sketch8.addConstraint(Sketcher.Constraint("Vertical", 0))
sketch8.addConstraint(Sketcher.Constraint("Horizontal", 1))
sketch8.addConstraint(Sketcher.Constraint("Vertical", 2))
sketch8.addConstraint(Sketcher.Constraint("Horizontal", 3))
sketch8.addConstraint(Sketcher.Constraint("Vertical", 4))
sketch8.addConstraint(Sketcher.Constraint("Horizontal", 5))
sketch8.addConstraint(Sketcher.Constraint("Vertical", 6))
sketch8.addConstraint(Sketcher.Constraint("Horizontal", 7))
sketch8.addConstraint(Sketcher.Constraint("Horizontal", 1, 2, 4, 2))
sketch8.addConstraint(Sketcher.Constraint("DistanceX", 1, 2, 1, 1, 3.0))
sketch8.addConstraint(Sketcher.Constraint("DistanceY", 2, 1, 2, 2, 27.0))
sketch8.addConstraint(Sketcher.Constraint("DistanceY", 6, 2, 3, 2, 3.0))
sketch8.addConstraint(Sketcher.Constraint("DistanceX", 7, 2, 7, 1, 55.0))
sketch8.addConstraint(Sketcher.Constraint("DistanceX", 0, 2, -1, 1, 117.0))
sketch8.addConstraint(Sketcher.Constraint("DistanceY", -1, 1, 0, 2, 110.0))
sketch8.addConstraint(Sketcher.Constraint("DistanceX", 3, 1, 3, 2, 60.4885))
pad4 = body.newObject("PartDesign::Pad", "Pad003")
pad4.Profile = sketch8
pad4.Type = "TwoLengths"
pad4.Length = 9
pad4.Length2 = 2
pad4.Reversed = True

sketch9 = body.newObject("Sketcher::SketchObject", "Sketch008")
sketch9.AttachmentSupport = (doc.getObject("XZ_Plane"), [""])
sketch9.MapMode = "FlatFace"
sketch9.AttachmentOffset = App.Placement(Vector(0, 0, -54), App.Rotation())
sketch9.addGeometry(Part.LineSegment(Vector(55, 40.5, 0), Vector(55, -110, 0)), False)
sketch9.addGeometry(Part.LineSegment(Vector(55, -110, 0), Vector(-35, -110, 0)), False)
sketch9.addGeometry(Part.LineSegment(Vector(-35, -110, 0), Vector(-35, 40.5, 0)), False)
sketch9.addGeometry(Part.LineSegment(Vector(-35, 40.5, 0), Vector(55, 40.5, 0)), False)
sketch9.addConstraint(Sketcher.Constraint("Coincident", 0, 2, 1, 1))
sketch9.addConstraint(Sketcher.Constraint("Coincident", 1, 2, 2, 1))
sketch9.addConstraint(Sketcher.Constraint("Coincident", 2, 2, 3, 1))
sketch9.addConstraint(Sketcher.Constraint("Coincident", 3, 2, 0, 1))
sketch9.addConstraint(Sketcher.Constraint("Vertical", 0))
sketch9.addConstraint(Sketcher.Constraint("Horizontal", 1))
sketch9.addConstraint(Sketcher.Constraint("Vertical", 2))
sketch9.addConstraint(Sketcher.Constraint("Horizontal", 3))
sketch9.addConstraint(Sketcher.Constraint("DistanceX", 1, 2, 1, 1, 90.0))
sketch9.addConstraint(Sketcher.Constraint("DistanceY", 0, 2, 0, 1, 150.5))
sketch9.addConstraint(Sketcher.Constraint("DistanceX", -1, 1, 0, 2, 55.0))
sketch9.addConstraint(Sketcher.Constraint("DistanceY", 0, 2, -1, 1, 110.0))
pad5 = body.newObject("PartDesign::Pad", "Pad004")
pad5.Profile = sketch9
pad5.Length = 4

sketch10 = body.newObject("Sketcher::SketchObject", "Sketch009")
sketch10.AttachmentSupport = (doc.getObject("XZ_Plane"), [""])
sketch10.MapMode = "FlatFace"
sketch10.AttachmentOffset = App.Placement(Vector(0, 0, -54), App.Rotation())
sketch10.addGeometry(Part.LineSegment(Vector(35, -90, 0), Vector(-15, -90, 0)), False)
sketch10.addGeometry(Part.LineSegment(Vector(-15, -90, 0), Vector(-15, -20, 0)), False)
sketch10.addGeometry(Part.LineSegment(Vector(-15, -20, 0), Vector(35, -20, 0)), False)
sketch10.addGeometry(Part.LineSegment(Vector(35, -20, 0), Vector(35, -90, 0)), False)
sketch10.addConstraint(Sketcher.Constraint("Coincident", 0, 2, 1, 1))
sketch10.addConstraint(Sketcher.Constraint("Coincident", 1, 2, 2, 1))
sketch10.addConstraint(Sketcher.Constraint("Coincident", 2, 2, 3, 1))
sketch10.addConstraint(Sketcher.Constraint("Coincident", 3, 2, 0, 1))
sketch10.addConstraint(Sketcher.Constraint("Horizontal", 0))
sketch10.addConstraint(Sketcher.Constraint("Vertical", 1))
sketch10.addConstraint(Sketcher.Constraint("Horizontal", 2))
sketch10.addConstraint(Sketcher.Constraint("Vertical", 3))
sketch10.addConstraint(Sketcher.Constraint("DistanceY", 1, 1, 1, 2, 70.0))
sketch10.addConstraint(Sketcher.Constraint("DistanceY", 1, 2, -1, 1, 20.0))
sketch10.addConstraint(Sketcher.Constraint("DistanceX", 0, 2, 0, 1, 50.0))
sketch10.addConstraint(Sketcher.Constraint("DistanceX", 0, 2, -1, 1, 15.0))
pocket5 = body.newObject("PartDesign::Pocket", "Pocket004")
pocket5.Profile = sketch10
pocket5.Length = 4
pocket5.Reversed = True

sketch11 = body.newObject("Sketcher::SketchObject", "Sketch010")
sketch11.AttachmentSupport = (doc.getObject("XZ_Plane"), [""])
sketch11.MapMode = "FlatFace"
sketch11.AttachmentOffset = App.Placement(Vector(0, 0, -54), App.Rotation())
sketch11.addGeometry(Part.LineSegment(Vector(-7.25, 20.5, 0), Vector(24.25, 20.5, 0)), False)
sketch11.addGeometry(Part.LineSegment(Vector(24.25, 20.5, 0), Vector(24.25, 0, 0)), False)
sketch11.addGeometry(Part.LineSegment(Vector(24.25, 0, 0), Vector(-7.25, 0, 0)), False)
sketch11.addGeometry(Part.LineSegment(Vector(-7.25, 0, 0), Vector(-7.25, 20.5, 0)), False)
sketch11.addConstraint(Sketcher.Constraint("Coincident", 0, 2, 1, 1))
sketch11.addConstraint(Sketcher.Constraint("Coincident", 1, 2, 2, 1))
sketch11.addConstraint(Sketcher.Constraint("Coincident", 2, 2, 3, 1))
sketch11.addConstraint(Sketcher.Constraint("Coincident", 3, 2, 0, 1))
sketch11.addConstraint(Sketcher.Constraint("Horizontal", 0))
sketch11.addConstraint(Sketcher.Constraint("Vertical", 1))
sketch11.addConstraint(Sketcher.Constraint("Horizontal", 2))
sketch11.addConstraint(Sketcher.Constraint("Vertical", 3))
sketch11.addConstraint(Sketcher.Constraint("PointOnObject", 1, 2, -1))
sketch11.addConstraint(Sketcher.Constraint("DistanceX", 0, 1, 0, 2, 31.5))
sketch11.addConstraint(Sketcher.Constraint("DistanceY", 1, 2, 1, 1, 20.5))
sketch11.addConstraint(Sketcher.Constraint("DistanceX", -1, 1, 0, 2, 24.25))
pocket6 = body.newObject("PartDesign::Pocket", "Pocket005")
pocket6.Profile = sketch11
pocket6.Length = 4
pocket6.Reversed = True

sketch12 = body.newObject("Sketcher::SketchObject", "Sketch011")
sketch12.AttachmentSupport = (doc.getObject("YZ_Plane"), [""])
sketch12.MapMode = "FlatFace"
sketch12.AttachmentOffset = App.Placement(Vector(0, 0, 55), App.Rotation())
sketch12.addGeometry(Part.LineSegment(Vector(36.75, 4.25, 0), Vector(36.75, 16.25, 0)), False)
sketch12.addGeometry(Part.LineSegment(Vector(36.75, 16.25, 0), Vector(17.25, 16.25, 0)), False)
sketch12.addGeometry(Part.LineSegment(Vector(17.25, 16.25, 0), Vector(17.25, 4.25, 0)), False)
sketch12.addGeometry(Part.LineSegment(Vector(17.25, 4.25, 0), Vector(36.75, 4.25, 0)), False)
sketch12.addConstraint(Sketcher.Constraint("Coincident", 0, 2, 1, 1))
sketch12.addConstraint(Sketcher.Constraint("Coincident", 1, 2, 2, 1))
sketch12.addConstraint(Sketcher.Constraint("Coincident", 2, 2, 3, 1))
sketch12.addConstraint(Sketcher.Constraint("Coincident", 3, 2, 0, 1))
sketch12.addConstraint(Sketcher.Constraint("Vertical", 0))
sketch12.addConstraint(Sketcher.Constraint("Horizontal", 1))
sketch12.addConstraint(Sketcher.Constraint("Vertical", 2))
sketch12.addConstraint(Sketcher.Constraint("Horizontal", 3))
sketch12.addConstraint(Sketcher.Constraint("DistanceY", 0, 1, 0, 2, 12.0))
sketch12.addConstraint(Sketcher.Constraint("DistanceX", 1, 2, 1, 1, 19.5))
sketch12.addConstraint(Sketcher.Constraint("DistanceX", -1, 1, 0, 2, 36.75))
sketch12.addConstraint(Sketcher.Constraint("DistanceY", -1, 1, 0, 2, 16.25))
pocket7 = body.newObject("PartDesign::Pocket", "Pocket006")
pocket7.Profile = sketch12
pocket7.Length = 4

sketch13 = body.newObject("Sketcher::SketchObject", "Sketch012")
sketch13.AttachmentSupport = (doc.getObject("YZ_Plane"), [""])
sketch13.MapMode = "FlatFace"
sketch13.AttachmentOffset = App.Placement(Vector(0, 0, -35), App.Rotation())
sketch13.addGeometry(Part.LineSegment(Vector(50, -90, 0), Vector(52, -90, 0)), False)
sketch13.addGeometry(Part.LineSegment(Vector(52, -90, 0), Vector(52, -100, 0)), False)
sketch13.addGeometry(Part.LineSegment(Vector(52, -100, 0), Vector(50, -100, 0)), False)
sketch13.addGeometry(Part.LineSegment(Vector(50, -100, 0), Vector(50, -90, 0)), False)
sketch13.addConstraint(Sketcher.Constraint("Coincident", 0, 2, 1, 1))
sketch13.addConstraint(Sketcher.Constraint("Coincident", 1, 2, 2, 1))
sketch13.addConstraint(Sketcher.Constraint("Coincident", 2, 2, 3, 1))
sketch13.addConstraint(Sketcher.Constraint("Coincident", 3, 2, 0, 1))
sketch13.addConstraint(Sketcher.Constraint("Horizontal", 0))
sketch13.addConstraint(Sketcher.Constraint("Vertical", 1))
sketch13.addConstraint(Sketcher.Constraint("Horizontal", 2))
sketch13.addConstraint(Sketcher.Constraint("Vertical", 3))
sketch13.addConstraint(Sketcher.Constraint("DistanceY", 1, 2, 1, 1, 10.0))
sketch13.addConstraint(Sketcher.Constraint("DistanceX", 0, 1, 0, 2, 2.0))
sketch13.addConstraint(Sketcher.Constraint("DistanceX", -1, 1, 0, 2, 52.0))
sketch13.addConstraint(Sketcher.Constraint("DistanceY", 0, 2, -1, 1, 90.0))
pocket8 = body.newObject("PartDesign::Pocket", "Pocket007")
pocket8.Profile = sketch13
pocket8.Length = 70
pocket8.Reversed = True

sketch14 = body.newObject("Sketcher::SketchObject", "Sketch013")
sketch14.AttachmentSupport = (doc.getObject("XY_Plane"), [""])
sketch14.MapMode = "FlatFace"
sketch14.AttachmentOffset = App.Placement(Vector(0, 0, 110), App.Rotation())
sketch14.addGeometry(Part.LineSegment(Vector(-123.5, 51, 0), Vector(-33.5, 51, 0)), False)
sketch14.addGeometry(Part.LineSegment(Vector(-33.5, 51, 0), Vector(-33.5, 53, 0)), False)
sketch14.addGeometry(Part.LineSegment(Vector(-33.5, 53, 0), Vector(-123.5, 53, 0)), False)
sketch14.addGeometry(Part.LineSegment(Vector(-123.5, 53, 0), Vector(-123.5, 51, 0)), False)
sketch14.addConstraint(Sketcher.Constraint("Coincident", 0, 2, 1, 1))
sketch14.addConstraint(Sketcher.Constraint("Coincident", 1, 2, 2, 1))
sketch14.addConstraint(Sketcher.Constraint("Coincident", 2, 2, 3, 1))
sketch14.addConstraint(Sketcher.Constraint("Coincident", 3, 2, 0, 1))
sketch14.addConstraint(Sketcher.Constraint("Horizontal", 0))
sketch14.addConstraint(Sketcher.Constraint("Vertical", 1))
sketch14.addConstraint(Sketcher.Constraint("Horizontal", 2))
sketch14.addConstraint(Sketcher.Constraint("Vertical", 3))
sketch14.addConstraint(Sketcher.Constraint("DistanceY", 1, 1, 1, 2, 2.0))
sketch14.addConstraint(Sketcher.Constraint("DistanceX", 0, 1, 0, 2, 90.0))
sketch14.addConstraint(Sketcher.Constraint("DistanceY", -1, 1, 0, 2, 51.0))
sketch14.addConstraint(Sketcher.Constraint("DistanceX", 0, 2, -1, 1, 33.5))
pocket9 = body.newObject("PartDesign::Pocket", "Pocket008")
pocket9.Profile = sketch14
pocket9.Length = 218.5

sketch15 = body.newObject("Sketcher::SketchObject", "Sketch014")
sketch15.AttachmentSupport = (doc.getObject("XY_Plane"), [""])
sketch15.MapMode = "FlatFace"
sketch15.AttachmentOffset = App.Placement(Vector(0, 0, 110), App.Rotation())
sketch15.addGeometry(Part.LineSegment(Vector(53.5, 53, 0), Vector(-33.5, 53, 0)), False)
sketch15.addGeometry(Part.LineSegment(Vector(-33.5, 53, 0), Vector(-33.5, 51, 0)), False)
sketch15.addGeometry(Part.LineSegment(Vector(-33.5, 51, 0), Vector(53.5, 51, 0)), False)
sketch15.addGeometry(Part.LineSegment(Vector(53.5, 51, 0), Vector(53.5, 53, 0)), False)
sketch15.addConstraint(Sketcher.Constraint("Coincident", 0, 2, 1, 1))
sketch15.addConstraint(Sketcher.Constraint("Coincident", 1, 2, 2, 1))
sketch15.addConstraint(Sketcher.Constraint("Coincident", 2, 2, 3, 1))
sketch15.addConstraint(Sketcher.Constraint("Coincident", 3, 2, 0, 1))
sketch15.addConstraint(Sketcher.Constraint("Horizontal", 0))
sketch15.addConstraint(Sketcher.Constraint("Vertical", 1))
sketch15.addConstraint(Sketcher.Constraint("Horizontal", 2))
sketch15.addConstraint(Sketcher.Constraint("Vertical", 3))
sketch15.addConstraint(Sketcher.Constraint("DistanceX", 0, 2, 0, 1, 87.0))
sketch15.addConstraint(Sketcher.Constraint("DistanceY", 1, 2, 1, 1, 2.0))
sketch15.addConstraint(Sketcher.Constraint("DistanceY", -1, 1, 0, 2, 53.0))
sketch15.addConstraint(Sketcher.Constraint("DistanceX", 0, 2, -1, 1, 33.5))
pocket10 = body.newObject("PartDesign::Pocket", "Pocket009")
pocket10.Profile = sketch15
pocket10.Length = 71

doc.recompute()
